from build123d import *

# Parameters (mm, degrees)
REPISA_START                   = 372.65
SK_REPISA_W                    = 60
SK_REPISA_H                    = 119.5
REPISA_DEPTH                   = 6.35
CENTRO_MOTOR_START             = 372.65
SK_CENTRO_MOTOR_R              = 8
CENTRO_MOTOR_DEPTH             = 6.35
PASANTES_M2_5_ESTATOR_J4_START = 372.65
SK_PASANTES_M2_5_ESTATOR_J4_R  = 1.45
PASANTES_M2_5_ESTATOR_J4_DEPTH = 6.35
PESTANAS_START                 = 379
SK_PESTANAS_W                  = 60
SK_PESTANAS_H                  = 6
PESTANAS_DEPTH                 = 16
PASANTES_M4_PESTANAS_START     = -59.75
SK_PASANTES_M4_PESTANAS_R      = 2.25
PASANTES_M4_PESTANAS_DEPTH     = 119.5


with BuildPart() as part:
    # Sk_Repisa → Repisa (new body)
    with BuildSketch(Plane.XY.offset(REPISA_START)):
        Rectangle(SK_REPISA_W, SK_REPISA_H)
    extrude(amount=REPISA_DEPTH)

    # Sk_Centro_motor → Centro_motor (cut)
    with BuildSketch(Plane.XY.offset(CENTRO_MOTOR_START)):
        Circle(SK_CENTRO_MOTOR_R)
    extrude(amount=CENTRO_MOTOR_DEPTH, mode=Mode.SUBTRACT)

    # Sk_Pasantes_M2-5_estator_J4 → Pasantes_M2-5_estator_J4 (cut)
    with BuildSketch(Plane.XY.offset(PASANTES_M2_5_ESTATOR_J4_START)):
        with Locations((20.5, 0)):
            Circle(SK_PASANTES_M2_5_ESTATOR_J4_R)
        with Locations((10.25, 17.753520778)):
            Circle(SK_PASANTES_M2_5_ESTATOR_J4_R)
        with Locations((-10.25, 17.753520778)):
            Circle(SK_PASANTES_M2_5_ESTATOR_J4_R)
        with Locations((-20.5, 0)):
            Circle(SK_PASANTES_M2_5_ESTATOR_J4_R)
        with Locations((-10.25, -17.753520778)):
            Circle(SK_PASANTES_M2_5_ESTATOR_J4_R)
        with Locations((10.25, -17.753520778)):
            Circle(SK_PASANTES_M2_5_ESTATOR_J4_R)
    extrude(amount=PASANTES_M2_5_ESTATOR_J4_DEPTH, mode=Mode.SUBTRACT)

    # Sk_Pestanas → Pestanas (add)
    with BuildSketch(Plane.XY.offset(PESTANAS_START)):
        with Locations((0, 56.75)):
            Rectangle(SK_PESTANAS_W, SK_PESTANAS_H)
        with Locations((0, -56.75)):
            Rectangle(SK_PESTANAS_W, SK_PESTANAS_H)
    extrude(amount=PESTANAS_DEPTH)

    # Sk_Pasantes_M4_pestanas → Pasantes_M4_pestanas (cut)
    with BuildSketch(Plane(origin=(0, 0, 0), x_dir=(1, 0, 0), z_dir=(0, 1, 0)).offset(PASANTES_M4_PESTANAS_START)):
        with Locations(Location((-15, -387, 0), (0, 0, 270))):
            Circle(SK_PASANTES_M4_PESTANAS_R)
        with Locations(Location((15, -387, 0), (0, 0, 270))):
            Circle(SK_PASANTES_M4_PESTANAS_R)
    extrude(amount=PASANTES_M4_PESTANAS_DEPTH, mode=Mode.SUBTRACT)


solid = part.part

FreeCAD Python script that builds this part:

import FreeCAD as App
import Part
import Sketcher
from FreeCAD import Vector


def add_polygon(sketch, points):
    """Adds a closed chain of lines whose ends are joined by coincident constraints."""
    first, n = sketch.GeometryCount, len(points)
    for a, b in zip(points, points[1:] + points[:1]):
        sketch.addGeometry(Part.LineSegment(App.Vector(*a, 0), App.Vector(*b, 0)), False)
    for i in range(n):
        sketch.addConstraint(Sketcher.Constraint("Coincident", first + i, 2, first + (i + 1) % n, 1))

doc = App.newDocument("Part")
body = doc.addObject("PartDesign::Body", "Body")

# Sketch on XY plane
sketch1 = body.newObject("Sketcher::SketchObject", "Sketch")
sketch1.AttachmentSupport = (doc.getObject("XY_Plane"), [""])
sketch1.MapMode = "FlatFace"
sketch1.AttachmentOffset = App.Placement(Vector(0, 0, 372.65), App.Rotation())
add_polygon(sketch1, [(-30, 60), (-30, -60), (30, -60), (30, 60)])  # lines 0-3
sketch1.addConstraint([
    Sketcher.Constraint("Vertical", 0),
    Sketcher.Constraint("Horizontal", 1),
    Sketcher.Constraint("Vertical", 2),
    Sketcher.Constraint("Horizontal", 3),
    Sketcher.Constraint("Symmetric", 0, 2, 2, 2, -1, 1),
    Sketcher.Constraint("DistanceX", 1, 1, 1, 2, 60.0),
    Sketcher.Constraint("DistanceY", 0, 2, 0, 1, 119.5),
])
pad1 = body.newObject("PartDesign::Pad", "Pad")
pad1.Profile = sketch1
pad1.Length = 6.35

# Sketch on XY plane
sketch2 = body.newObject("Sketcher::SketchObject", "Sketch001")
sketch2.AttachmentSupport = (doc.getObject("XY_Plane"), [""])
sketch2.MapMode = "FlatFace"
sketch2.AttachmentOffset = App.Placement(Vector(0, 0, 372.65), App.Rotation())
sketch2.addGeometry(Part.Circle(Vector(0, 0, 0), Vector(0, 0, 1), 8), False)
sketch2.addConstraint([
    Sketcher.Constraint("Coincident", 0, 3, -1, 1),
    Sketcher.Constraint("Diameter", 0, 16.0),
])
pocket1 = body.newObject("PartDesign::Pocket", "Pocket")
pocket1.Profile = sketch2
pocket1.Length = 6.35
pocket1.Reversed = True

# Sketch on XY plane
sketch3 = body.newObject("Sketcher::SketchObject", "Sketch002")
sketch3.AttachmentSupport = (doc.getObject("XY_Plane"), [""])
sketch3.MapMode = "FlatFace"
sketch3.AttachmentOffset = App.Placement(Vector(0, 0, 372.65), App.Rotation())
sketch3.addGeometry([
    Part.Circle(Vector(20.5, 0, 0), Vector(0, 0, 1), 1.4),  # 0
    Part.Circle(Vector(10.2, 17.8, 0), Vector(0, 0, 1), 1.4),  # 1
    Part.Circle(Vector(-10.2, 17.8, 0), Vector(0, 0, 1), 1.4),  # 2
    Part.Circle(Vector(-20.5, 0, 0), Vector(0, 0, 1), 1.4),  # 3
    Part.Circle(Vector(-10.2, -17.8, 0), Vector(0, 0, 1), 1.4),  # 4
    Part.Circle(Vector(10.2, -17.8, 0), Vector(0, 0, 1), 1.4),  # 5
], False)
sketch3.addConstraint([
    Sketcher.Constraint("Equal", 0, 1),
    Sketcher.Constraint("Equal", 1, 2),
    Sketcher.Constraint("Equal", 2, 3),
    Sketcher.Constraint("Equal", 3, 4),
    Sketcher.Constraint("Equal", 4, 5),
    Sketcher.Constraint("Symmetric", 0, 3, 3, 3, -1, 1),
    Sketcher.Constraint("Symmetric", 1, 3, 4, 3, -1, 1),
    Sketcher.Constraint("Symmetric", 2, 3, 5, 3, -1, 1),
    Sketcher.Constraint("Symmetric", 1, 3, 2, 3, -2),
    Sketcher.Constraint("PointOnObject", 0, 3, -1),
    Sketcher.Constraint("Diameter", 0, 2.9),
    Sketcher.Constraint("DistanceX", 3, 3, 0, 3, 41.0),
    Sketcher.Constraint("DistanceX", 2, 3, 1, 3, 20.5),
    Sketcher.Constraint("DistanceY", -1, 1, 1, 3, 17.753521),
])
pocket2 = body.newObject("PartDesign::Pocket", "Pocket001")
pocket2.Profile = sketch3
pocket2.Length = 6.35
pocket2.Reversed = True

# Sketch on XY plane
sketch4 = body.newObject("Sketcher::SketchObject", "Sketch003")
sketch4.AttachmentSupport = (doc.getObject("XY_Plane"), [""])
sketch4.MapMode = "FlatFace"
sketch4.AttachmentOffset = App.Placement(Vector(0, 0, 379), App.Rotation())
add_polygon(sketch4, [(-30, 60), (-30, 54), (30, 54), (30, 60)])  # lines 0-3
add_polygon(sketch4, [(-30, -54), (-30, -60), (30, -60), (30, -54)])  # lines 4-7
sketch4.addConstraint([
    Sketcher.Constraint("Vertical", 0),
    Sketcher.Constraint("Horizontal", 1),
    Sketcher.Constraint("Vertical", 2),
    Sketcher.Constraint("Horizontal", 3),
    Sketcher.Constraint("Vertical", 4),
    Sketcher.Constraint("Horizontal", 5),
    Sketcher.Constraint("Vertical", 6),
    Sketcher.Constraint("Horizontal", 7),
    Sketcher.Constraint("Symmetric", 2, 2, 4, 2, -1, 1),
    Sketcher.Constraint("Symmetric", 0, 2, 6, 2, -1, 1),
    Sketcher.Constraint("Vertical", 3, 2, 4, 2),
    Sketcher.Constraint("DistanceX", 1, 1, 1, 2, 60.0),
    Sketcher.Constraint("DistanceY", 0, 2, 0, 1, 6.0),
    Sketcher.Constraint("DistanceY", 4, 2, 0, 2, 113.5),
])
pad2 = body.newObject("PartDesign::Pad", "Pad001")
pad2.Profile = sketch4
pad2.Length = 16

# Sketch on XZ plane
sketch5 = body.newObject("Sketcher::SketchObject", "Sketch004")
sketch5.AttachmentSupport = (doc.getObject("XZ_Plane"), [""])
sketch5.MapMode = "FlatFace"
sketch5.AttachmentOffset = App.Placement(Vector(0, 0, 59.75), App.Rotation())
sketch5.addGeometry([
    Part.Circle(Vector(-15, 387, 0), Vector(0, 0, 1), 2.2),
    Part.Circle(Vector(15, 387, 0), Vector(0, 0, 1), 2.2),
], False)
sketch5.addConstraint([
    Sketcher.Constraint("Equal", 0, 1),
    Sketcher.Constraint("Symmetric", 0, 3, 1, 3, -2),
    Sketcher.Constraint("Diameter", 0, 4.5),
    Sketcher.Constraint("DistanceX", 0, 3, -1, 1, 15.0),
    Sketcher.Constraint("DistanceY", -1, 1, 0, 3, 387.0),
])
pocket3 = body.newObject("PartDesign::Pocket", "Pocket002")
pocket3.Profile = sketch5
pocket3.Length = 119.5

doc.recompute()
